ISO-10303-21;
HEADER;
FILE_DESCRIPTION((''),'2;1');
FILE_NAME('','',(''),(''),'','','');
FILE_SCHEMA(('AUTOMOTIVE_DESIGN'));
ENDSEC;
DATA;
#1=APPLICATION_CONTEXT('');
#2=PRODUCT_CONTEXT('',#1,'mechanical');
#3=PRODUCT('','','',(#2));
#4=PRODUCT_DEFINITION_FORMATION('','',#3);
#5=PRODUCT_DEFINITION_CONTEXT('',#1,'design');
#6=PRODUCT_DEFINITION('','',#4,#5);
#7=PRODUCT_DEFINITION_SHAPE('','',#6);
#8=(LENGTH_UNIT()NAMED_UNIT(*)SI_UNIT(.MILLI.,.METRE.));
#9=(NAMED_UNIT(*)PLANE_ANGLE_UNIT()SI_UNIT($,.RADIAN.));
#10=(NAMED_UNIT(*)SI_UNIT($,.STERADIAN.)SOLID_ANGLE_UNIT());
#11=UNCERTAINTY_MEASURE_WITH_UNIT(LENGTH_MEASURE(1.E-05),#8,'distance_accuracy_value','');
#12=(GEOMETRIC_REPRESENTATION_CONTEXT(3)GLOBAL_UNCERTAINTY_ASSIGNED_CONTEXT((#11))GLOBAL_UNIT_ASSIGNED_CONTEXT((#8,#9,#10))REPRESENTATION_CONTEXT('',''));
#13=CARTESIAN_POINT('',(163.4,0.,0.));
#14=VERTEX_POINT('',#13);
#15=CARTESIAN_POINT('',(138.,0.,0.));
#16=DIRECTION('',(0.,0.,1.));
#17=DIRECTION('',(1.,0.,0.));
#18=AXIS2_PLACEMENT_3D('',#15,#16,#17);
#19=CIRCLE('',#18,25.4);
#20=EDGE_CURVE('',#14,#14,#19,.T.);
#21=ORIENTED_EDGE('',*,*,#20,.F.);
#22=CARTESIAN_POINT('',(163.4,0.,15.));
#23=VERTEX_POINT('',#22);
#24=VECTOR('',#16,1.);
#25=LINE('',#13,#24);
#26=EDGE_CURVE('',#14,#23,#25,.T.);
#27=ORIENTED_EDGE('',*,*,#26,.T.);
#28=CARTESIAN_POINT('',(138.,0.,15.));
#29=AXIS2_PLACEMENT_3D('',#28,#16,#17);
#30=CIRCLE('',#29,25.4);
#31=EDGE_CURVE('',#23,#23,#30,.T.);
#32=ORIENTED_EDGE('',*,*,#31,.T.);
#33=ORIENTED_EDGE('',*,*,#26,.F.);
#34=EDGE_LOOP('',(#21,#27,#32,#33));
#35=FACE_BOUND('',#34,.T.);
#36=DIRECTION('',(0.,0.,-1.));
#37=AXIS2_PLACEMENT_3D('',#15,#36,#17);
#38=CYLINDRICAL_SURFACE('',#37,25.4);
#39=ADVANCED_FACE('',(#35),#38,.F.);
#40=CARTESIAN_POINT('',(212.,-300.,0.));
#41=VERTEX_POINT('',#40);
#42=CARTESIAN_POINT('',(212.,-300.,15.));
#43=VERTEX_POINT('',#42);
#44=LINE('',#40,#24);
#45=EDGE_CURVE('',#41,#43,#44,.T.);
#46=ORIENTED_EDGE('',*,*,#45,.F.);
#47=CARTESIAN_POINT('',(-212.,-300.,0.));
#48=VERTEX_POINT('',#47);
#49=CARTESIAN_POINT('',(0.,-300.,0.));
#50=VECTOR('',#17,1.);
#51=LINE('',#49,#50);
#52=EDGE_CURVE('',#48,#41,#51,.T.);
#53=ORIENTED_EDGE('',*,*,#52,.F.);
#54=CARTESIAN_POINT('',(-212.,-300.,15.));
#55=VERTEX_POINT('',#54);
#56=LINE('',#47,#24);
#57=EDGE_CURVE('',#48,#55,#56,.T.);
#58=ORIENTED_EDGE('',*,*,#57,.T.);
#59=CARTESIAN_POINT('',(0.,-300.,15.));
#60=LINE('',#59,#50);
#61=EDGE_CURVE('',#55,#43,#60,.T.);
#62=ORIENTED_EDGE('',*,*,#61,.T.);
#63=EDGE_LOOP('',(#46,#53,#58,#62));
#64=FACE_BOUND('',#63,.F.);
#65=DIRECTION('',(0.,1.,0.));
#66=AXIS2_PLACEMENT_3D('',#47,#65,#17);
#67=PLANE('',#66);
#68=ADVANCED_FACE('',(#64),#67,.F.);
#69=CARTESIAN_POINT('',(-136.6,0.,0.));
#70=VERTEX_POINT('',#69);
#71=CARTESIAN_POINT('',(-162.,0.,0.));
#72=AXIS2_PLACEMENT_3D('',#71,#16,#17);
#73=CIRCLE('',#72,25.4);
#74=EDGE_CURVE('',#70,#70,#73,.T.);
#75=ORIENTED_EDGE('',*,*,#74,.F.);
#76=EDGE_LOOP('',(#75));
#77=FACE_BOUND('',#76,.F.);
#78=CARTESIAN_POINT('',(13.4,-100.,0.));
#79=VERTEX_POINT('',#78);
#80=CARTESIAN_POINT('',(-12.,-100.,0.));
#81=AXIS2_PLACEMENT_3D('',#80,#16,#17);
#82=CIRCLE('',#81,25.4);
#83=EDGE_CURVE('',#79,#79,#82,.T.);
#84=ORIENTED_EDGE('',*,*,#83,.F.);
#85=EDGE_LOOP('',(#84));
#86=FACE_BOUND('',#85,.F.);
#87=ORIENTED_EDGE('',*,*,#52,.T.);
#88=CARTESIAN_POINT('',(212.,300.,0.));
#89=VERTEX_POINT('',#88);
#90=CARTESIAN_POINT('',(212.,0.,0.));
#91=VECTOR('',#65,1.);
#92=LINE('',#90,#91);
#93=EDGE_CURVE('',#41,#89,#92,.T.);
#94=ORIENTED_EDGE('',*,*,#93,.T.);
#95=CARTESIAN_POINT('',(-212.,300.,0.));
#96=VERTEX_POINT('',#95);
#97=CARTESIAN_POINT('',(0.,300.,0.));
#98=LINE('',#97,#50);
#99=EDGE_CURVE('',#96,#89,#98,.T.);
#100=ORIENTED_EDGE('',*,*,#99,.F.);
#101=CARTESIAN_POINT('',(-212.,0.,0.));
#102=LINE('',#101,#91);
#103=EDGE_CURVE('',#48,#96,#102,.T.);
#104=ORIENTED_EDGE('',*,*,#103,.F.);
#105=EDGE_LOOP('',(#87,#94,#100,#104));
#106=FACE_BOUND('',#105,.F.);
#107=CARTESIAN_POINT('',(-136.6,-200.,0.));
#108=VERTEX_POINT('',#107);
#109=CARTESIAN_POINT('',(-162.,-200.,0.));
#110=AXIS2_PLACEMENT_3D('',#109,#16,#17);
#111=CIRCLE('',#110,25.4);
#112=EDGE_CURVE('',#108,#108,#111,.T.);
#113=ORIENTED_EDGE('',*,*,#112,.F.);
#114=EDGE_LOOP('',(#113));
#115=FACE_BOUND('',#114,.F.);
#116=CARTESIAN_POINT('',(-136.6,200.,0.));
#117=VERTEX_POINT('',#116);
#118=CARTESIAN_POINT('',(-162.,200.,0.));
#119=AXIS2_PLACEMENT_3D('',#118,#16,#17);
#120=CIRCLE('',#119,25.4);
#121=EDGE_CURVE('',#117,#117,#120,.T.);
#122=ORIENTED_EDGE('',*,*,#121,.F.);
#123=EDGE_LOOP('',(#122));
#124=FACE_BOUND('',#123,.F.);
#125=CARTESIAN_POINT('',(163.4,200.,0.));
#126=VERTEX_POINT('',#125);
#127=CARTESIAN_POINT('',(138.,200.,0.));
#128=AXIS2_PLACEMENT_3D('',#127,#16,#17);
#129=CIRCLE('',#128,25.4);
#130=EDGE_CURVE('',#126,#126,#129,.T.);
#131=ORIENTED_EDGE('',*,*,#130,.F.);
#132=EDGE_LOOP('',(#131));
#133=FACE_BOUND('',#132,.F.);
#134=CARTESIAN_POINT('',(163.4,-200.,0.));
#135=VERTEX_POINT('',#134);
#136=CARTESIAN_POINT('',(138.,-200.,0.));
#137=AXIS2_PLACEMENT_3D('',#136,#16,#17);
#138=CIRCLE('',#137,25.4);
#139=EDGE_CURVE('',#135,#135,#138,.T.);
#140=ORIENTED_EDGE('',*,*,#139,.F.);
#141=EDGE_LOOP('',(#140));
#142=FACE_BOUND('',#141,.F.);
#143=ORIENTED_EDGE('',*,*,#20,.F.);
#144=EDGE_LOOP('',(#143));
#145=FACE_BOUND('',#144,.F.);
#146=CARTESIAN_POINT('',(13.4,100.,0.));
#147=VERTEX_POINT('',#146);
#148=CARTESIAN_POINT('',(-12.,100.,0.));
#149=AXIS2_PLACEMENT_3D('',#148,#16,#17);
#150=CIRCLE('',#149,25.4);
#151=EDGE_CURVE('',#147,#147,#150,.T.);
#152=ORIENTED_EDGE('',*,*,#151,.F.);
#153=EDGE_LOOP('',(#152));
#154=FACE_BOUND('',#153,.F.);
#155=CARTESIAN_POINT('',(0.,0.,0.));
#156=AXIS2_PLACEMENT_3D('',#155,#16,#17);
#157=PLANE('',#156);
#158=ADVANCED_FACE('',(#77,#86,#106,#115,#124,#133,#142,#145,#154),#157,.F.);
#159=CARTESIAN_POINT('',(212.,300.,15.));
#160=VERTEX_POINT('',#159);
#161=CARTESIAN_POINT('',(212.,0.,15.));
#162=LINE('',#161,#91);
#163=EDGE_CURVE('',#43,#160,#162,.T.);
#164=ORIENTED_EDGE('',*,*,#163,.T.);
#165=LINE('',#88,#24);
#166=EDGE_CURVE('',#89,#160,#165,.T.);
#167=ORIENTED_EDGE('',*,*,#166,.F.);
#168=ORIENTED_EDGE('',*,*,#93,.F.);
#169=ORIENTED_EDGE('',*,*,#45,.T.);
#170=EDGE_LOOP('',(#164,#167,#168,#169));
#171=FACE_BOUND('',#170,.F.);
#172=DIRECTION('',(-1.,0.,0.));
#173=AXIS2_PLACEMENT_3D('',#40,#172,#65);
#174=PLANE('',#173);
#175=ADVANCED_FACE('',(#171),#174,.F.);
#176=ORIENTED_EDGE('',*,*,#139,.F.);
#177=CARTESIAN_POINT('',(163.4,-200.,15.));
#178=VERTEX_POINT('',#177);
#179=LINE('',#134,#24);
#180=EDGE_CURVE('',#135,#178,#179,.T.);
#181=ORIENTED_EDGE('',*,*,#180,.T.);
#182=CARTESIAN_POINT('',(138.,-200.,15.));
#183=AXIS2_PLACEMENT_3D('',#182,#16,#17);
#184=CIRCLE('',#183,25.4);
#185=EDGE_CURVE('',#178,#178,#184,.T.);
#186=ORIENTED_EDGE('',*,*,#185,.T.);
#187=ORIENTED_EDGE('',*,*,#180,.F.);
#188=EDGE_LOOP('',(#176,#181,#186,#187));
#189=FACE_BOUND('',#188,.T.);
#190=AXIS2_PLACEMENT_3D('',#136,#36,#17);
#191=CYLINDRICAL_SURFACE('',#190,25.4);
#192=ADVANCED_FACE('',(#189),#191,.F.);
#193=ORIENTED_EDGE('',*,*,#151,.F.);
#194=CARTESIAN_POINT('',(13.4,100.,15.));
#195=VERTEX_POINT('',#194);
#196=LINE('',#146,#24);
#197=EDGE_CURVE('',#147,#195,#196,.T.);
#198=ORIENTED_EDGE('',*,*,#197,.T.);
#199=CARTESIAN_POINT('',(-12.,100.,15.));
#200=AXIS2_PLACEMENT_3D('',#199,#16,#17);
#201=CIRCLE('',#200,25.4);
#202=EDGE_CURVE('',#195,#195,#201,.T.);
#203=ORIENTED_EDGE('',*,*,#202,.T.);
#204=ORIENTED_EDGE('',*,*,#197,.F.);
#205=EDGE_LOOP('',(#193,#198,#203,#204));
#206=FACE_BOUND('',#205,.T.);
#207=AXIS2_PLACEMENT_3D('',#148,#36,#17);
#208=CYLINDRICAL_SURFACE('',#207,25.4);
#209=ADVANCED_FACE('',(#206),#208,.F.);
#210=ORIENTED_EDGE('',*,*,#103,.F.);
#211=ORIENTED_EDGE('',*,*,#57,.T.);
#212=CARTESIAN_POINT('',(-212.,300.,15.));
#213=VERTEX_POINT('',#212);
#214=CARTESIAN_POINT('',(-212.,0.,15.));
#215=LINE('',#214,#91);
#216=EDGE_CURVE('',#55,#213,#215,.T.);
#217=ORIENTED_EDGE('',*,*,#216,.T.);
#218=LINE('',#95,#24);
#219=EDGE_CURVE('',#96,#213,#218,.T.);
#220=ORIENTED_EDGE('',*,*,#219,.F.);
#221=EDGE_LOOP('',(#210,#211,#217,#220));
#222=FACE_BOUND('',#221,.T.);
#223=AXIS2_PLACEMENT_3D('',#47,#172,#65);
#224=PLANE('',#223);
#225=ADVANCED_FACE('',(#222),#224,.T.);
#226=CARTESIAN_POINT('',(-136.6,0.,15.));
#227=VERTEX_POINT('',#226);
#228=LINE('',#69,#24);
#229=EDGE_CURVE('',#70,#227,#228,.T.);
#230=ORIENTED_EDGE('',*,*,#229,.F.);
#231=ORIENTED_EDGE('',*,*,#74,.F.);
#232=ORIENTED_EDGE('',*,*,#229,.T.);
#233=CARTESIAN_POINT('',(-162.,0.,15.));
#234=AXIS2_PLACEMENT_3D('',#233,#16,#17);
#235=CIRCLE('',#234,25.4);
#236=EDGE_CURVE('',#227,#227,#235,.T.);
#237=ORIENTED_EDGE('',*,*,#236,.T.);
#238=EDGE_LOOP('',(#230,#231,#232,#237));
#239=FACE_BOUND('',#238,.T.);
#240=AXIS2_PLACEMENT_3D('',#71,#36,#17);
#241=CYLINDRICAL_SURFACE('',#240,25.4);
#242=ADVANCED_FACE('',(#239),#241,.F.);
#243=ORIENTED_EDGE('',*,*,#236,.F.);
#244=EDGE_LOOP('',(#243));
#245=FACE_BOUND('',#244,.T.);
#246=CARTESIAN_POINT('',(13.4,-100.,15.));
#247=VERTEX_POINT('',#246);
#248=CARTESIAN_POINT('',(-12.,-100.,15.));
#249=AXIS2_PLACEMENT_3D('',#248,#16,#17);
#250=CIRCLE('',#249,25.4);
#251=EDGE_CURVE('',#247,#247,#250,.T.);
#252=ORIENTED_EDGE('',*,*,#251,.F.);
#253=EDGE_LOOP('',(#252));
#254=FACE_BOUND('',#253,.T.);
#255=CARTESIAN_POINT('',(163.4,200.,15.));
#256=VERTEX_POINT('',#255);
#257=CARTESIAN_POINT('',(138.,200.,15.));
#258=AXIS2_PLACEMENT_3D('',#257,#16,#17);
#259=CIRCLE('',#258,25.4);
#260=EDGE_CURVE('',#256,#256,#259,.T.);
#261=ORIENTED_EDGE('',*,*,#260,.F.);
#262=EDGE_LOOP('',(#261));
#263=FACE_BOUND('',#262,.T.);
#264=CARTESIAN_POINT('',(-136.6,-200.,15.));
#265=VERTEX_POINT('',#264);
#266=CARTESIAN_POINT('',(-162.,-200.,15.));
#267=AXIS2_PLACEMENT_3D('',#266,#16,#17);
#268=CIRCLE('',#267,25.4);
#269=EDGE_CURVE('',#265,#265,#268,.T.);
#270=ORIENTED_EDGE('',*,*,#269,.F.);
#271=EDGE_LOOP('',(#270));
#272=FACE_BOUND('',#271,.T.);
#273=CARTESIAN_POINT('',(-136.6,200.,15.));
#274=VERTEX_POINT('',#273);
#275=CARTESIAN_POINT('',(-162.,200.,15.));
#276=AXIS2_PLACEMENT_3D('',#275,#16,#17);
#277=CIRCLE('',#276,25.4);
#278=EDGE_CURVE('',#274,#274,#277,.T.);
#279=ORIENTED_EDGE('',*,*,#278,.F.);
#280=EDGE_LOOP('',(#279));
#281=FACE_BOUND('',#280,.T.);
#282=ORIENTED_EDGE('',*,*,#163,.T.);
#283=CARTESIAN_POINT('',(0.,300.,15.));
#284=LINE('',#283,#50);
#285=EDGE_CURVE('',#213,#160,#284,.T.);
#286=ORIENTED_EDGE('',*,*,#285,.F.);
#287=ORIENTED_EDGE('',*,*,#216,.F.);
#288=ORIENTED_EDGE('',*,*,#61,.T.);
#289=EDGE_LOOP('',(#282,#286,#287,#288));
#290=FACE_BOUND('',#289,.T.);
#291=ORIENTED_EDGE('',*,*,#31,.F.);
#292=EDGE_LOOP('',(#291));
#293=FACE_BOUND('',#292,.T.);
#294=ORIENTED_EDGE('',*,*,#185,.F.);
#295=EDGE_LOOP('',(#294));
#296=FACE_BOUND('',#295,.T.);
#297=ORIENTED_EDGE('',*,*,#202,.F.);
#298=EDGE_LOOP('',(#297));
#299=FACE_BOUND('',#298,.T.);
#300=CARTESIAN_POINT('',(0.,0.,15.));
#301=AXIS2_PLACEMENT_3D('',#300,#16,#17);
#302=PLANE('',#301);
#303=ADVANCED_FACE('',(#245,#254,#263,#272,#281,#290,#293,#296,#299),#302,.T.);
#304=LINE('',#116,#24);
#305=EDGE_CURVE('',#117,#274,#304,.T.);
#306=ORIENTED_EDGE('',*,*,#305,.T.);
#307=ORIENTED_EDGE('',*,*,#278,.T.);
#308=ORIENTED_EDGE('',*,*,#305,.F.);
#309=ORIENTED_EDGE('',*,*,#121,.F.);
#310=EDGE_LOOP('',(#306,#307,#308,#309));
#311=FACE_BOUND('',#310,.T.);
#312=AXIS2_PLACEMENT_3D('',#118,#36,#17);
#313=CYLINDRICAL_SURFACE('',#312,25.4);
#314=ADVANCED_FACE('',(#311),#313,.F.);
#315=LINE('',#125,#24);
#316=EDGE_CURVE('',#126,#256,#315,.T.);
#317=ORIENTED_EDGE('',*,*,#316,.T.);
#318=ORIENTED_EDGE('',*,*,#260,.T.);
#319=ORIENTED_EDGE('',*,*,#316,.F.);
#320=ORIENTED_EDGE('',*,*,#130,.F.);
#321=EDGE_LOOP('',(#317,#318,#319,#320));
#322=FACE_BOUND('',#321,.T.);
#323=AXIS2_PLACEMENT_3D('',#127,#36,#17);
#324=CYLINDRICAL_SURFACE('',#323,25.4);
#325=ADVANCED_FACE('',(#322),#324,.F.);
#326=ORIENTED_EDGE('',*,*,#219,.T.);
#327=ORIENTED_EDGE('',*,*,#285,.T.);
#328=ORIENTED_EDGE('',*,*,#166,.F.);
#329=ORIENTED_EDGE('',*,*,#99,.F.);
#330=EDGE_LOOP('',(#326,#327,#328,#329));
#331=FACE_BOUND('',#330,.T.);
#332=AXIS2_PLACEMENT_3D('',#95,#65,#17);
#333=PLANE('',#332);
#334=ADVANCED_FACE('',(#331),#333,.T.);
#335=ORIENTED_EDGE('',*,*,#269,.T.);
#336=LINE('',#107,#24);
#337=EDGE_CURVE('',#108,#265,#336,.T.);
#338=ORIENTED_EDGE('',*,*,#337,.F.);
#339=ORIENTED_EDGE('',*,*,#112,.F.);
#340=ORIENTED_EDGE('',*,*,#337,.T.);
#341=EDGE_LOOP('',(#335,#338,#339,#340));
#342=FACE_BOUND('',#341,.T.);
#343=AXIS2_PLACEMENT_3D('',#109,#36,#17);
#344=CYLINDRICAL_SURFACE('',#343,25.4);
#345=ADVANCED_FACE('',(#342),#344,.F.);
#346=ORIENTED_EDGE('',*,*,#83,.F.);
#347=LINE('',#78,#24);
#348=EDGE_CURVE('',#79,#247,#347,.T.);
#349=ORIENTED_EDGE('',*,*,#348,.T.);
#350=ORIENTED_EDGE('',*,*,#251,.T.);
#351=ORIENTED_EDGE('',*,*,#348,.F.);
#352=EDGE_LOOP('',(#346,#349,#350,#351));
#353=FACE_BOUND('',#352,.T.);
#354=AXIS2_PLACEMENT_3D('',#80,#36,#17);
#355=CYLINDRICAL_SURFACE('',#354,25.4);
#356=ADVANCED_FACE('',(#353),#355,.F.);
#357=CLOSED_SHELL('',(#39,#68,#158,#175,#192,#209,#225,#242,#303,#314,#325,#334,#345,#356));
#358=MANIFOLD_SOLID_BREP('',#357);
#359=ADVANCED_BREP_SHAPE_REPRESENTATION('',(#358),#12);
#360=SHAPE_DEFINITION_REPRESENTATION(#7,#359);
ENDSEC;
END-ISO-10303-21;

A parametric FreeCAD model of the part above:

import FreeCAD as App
import Part
import Sketcher

V = App.Vector


def add_polygon(sketch, points):
    """Adds a closed chain of lines whose ends are joined by coincident constraints."""
    first, n = sketch.GeometryCount, len(points)
    for a, b in zip(points, points[1:] + points[:1]):
        sketch.addGeometry(Part.LineSegment(App.Vector(*a, 0), App.Vector(*b, 0)), False)
    for i in range(n):
        sketch.addConstraint(Sketcher.Constraint("Coincident", first + i, 2, first + (i + 1) % n, 1))

doc = App.newDocument("Part")
params = doc.addObject("Spreadsheet::Sheet", "Params")
for row, (alias, value) in enumerate([
    ("sketch1_diameter", "50.8 mm"),
    ("sketch1_width", "424 mm"),
    ("sketch1_height", "600 mm"),
    ("pad1_length", "15 mm"),
], start=1):
    params.set(f"A{row}", alias)
    params.set(f"B{row}", "=" + value)
    params.setAlias(f"B{row}", alias)

body = doc.addObject("PartDesign::Body", "Body")

# Sketch on XY plane
sketch1 = doc.addObject("Sketcher::SketchObject", "Sketch")
body.addObject(sketch1)
sketch1.AttachmentSupport = (doc.XY_Plane, [""])
sketch1.MapMode = "FlatFace"
add_polygon(sketch1, [(-212, 300), (-212, -300), (212, -300), (212, 300)])  # lines 0-3
sketch1.addGeometry(Part.Circle(V(-162, -200, 0), V(0, 0, 1), 25), False)  # 4
sketch1.addGeometry(Part.Circle(V(138, -200, 0), V(0, 0, 1), 25), False)  # 5
sketch1.addGeometry(Part.Circle(V(-12, -100, 0), V(0, 0, 1), 25), False)  # 6
sketch1.addGeometry(Part.Circle(V(-162, 0, 0), V(0, 0, 1), 25), False)  # 7
sketch1.addGeometry(Part.Circle(V(-162, 200, 0), V(0, 0, 1), 25), False)  # 8
sketch1.addGeometry(Part.Circle(V(-12, 100, 0), V(0, 0, 1), 25), False)  # 9
sketch1.addGeometry(Part.Circle(V(138, 0, 0), V(0, 0, 1), 25), False)  # 10
sketch1.addGeometry(Part.Circle(V(138, 200, 0), V(0, 0, 1), 25), False)  # 11
sketch1.addConstraint([
    Sketcher.Constraint("Vertical", 0),
    Sketcher.Constraint("Horizontal", 1),
    Sketcher.Constraint("Vertical", 2),
    Sketcher.Constraint("Horizontal", 3),
    Sketcher.Constraint("Equal", 4, 5),
    Sketcher.Constraint("Equal", 5, 6),
    Sketcher.Constraint("Equal", 6, 7),
    Sketcher.Constraint("Equal", 7, 8),
    Sketcher.Constraint("Equal", 8, 9),
    Sketcher.Constraint("Equal", 9, 10),
    Sketcher.Constraint("Equal", 10, 11),
    Sketcher.Constraint("Symmetric", 0, 2, 2, 2, -1, 1),
    Sketcher.Constraint("Symmetric", 4, 3, 8, 3, -1),
    Sketcher.Constraint("Symmetric", 6, 3, 9, 3, -1),
    Sketcher.Constraint("Symmetric", 5, 3, 11, 3, -1),
    Sketcher.Constraint("PointOnObject", 7, 3, -1),
    Sketcher.Constraint("PointOnObject", 10, 3, -1),
    Sketcher.Constraint("Horizontal", 4, 3, 5, 3),
    Sketcher.Constraint("Vertical", 4, 3, 7, 3),
    Sketcher.Constraint("Vertical", 5, 3, 10, 3),
    Sketcher.Constraint("Diameter", 4, 50.8),
    Sketcher.Constraint("DistanceX", 1, 1, 1, 2, 424.0),
    Sketcher.Constraint("DistanceY", 0, 2, 0, 1, 600.0),
    Sketcher.Constraint("DistanceX", 4, 3, -1, 1, 162.0),
    Sketcher.Constraint("DistanceY", 4, 3, -1, 1, 200.0),
    Sketcher.Constraint("DistanceX", -1, 1, 5, 3, 138.0),
    Sketcher.Constraint("DistanceX", 6, 3, -1, 1, 12.0),
    Sketcher.Constraint("DistanceY", 6, 3, -1, 1, 100.0),
])
sketch1.setExpression("Constraints[24]", "Params.sketch1_diameter")
sketch1.setExpression("Constraints[25]", "Params.sketch1_width")
sketch1.setExpression("Constraints[26]", "Params.sketch1_height")
pad1 = doc.addObject("PartDesign::Pad", "Pad")
body.addObject(pad1)
pad1.Profile = sketch1
pad1.setExpression("Length", "Params.pad1_length")

doc.recompute()
